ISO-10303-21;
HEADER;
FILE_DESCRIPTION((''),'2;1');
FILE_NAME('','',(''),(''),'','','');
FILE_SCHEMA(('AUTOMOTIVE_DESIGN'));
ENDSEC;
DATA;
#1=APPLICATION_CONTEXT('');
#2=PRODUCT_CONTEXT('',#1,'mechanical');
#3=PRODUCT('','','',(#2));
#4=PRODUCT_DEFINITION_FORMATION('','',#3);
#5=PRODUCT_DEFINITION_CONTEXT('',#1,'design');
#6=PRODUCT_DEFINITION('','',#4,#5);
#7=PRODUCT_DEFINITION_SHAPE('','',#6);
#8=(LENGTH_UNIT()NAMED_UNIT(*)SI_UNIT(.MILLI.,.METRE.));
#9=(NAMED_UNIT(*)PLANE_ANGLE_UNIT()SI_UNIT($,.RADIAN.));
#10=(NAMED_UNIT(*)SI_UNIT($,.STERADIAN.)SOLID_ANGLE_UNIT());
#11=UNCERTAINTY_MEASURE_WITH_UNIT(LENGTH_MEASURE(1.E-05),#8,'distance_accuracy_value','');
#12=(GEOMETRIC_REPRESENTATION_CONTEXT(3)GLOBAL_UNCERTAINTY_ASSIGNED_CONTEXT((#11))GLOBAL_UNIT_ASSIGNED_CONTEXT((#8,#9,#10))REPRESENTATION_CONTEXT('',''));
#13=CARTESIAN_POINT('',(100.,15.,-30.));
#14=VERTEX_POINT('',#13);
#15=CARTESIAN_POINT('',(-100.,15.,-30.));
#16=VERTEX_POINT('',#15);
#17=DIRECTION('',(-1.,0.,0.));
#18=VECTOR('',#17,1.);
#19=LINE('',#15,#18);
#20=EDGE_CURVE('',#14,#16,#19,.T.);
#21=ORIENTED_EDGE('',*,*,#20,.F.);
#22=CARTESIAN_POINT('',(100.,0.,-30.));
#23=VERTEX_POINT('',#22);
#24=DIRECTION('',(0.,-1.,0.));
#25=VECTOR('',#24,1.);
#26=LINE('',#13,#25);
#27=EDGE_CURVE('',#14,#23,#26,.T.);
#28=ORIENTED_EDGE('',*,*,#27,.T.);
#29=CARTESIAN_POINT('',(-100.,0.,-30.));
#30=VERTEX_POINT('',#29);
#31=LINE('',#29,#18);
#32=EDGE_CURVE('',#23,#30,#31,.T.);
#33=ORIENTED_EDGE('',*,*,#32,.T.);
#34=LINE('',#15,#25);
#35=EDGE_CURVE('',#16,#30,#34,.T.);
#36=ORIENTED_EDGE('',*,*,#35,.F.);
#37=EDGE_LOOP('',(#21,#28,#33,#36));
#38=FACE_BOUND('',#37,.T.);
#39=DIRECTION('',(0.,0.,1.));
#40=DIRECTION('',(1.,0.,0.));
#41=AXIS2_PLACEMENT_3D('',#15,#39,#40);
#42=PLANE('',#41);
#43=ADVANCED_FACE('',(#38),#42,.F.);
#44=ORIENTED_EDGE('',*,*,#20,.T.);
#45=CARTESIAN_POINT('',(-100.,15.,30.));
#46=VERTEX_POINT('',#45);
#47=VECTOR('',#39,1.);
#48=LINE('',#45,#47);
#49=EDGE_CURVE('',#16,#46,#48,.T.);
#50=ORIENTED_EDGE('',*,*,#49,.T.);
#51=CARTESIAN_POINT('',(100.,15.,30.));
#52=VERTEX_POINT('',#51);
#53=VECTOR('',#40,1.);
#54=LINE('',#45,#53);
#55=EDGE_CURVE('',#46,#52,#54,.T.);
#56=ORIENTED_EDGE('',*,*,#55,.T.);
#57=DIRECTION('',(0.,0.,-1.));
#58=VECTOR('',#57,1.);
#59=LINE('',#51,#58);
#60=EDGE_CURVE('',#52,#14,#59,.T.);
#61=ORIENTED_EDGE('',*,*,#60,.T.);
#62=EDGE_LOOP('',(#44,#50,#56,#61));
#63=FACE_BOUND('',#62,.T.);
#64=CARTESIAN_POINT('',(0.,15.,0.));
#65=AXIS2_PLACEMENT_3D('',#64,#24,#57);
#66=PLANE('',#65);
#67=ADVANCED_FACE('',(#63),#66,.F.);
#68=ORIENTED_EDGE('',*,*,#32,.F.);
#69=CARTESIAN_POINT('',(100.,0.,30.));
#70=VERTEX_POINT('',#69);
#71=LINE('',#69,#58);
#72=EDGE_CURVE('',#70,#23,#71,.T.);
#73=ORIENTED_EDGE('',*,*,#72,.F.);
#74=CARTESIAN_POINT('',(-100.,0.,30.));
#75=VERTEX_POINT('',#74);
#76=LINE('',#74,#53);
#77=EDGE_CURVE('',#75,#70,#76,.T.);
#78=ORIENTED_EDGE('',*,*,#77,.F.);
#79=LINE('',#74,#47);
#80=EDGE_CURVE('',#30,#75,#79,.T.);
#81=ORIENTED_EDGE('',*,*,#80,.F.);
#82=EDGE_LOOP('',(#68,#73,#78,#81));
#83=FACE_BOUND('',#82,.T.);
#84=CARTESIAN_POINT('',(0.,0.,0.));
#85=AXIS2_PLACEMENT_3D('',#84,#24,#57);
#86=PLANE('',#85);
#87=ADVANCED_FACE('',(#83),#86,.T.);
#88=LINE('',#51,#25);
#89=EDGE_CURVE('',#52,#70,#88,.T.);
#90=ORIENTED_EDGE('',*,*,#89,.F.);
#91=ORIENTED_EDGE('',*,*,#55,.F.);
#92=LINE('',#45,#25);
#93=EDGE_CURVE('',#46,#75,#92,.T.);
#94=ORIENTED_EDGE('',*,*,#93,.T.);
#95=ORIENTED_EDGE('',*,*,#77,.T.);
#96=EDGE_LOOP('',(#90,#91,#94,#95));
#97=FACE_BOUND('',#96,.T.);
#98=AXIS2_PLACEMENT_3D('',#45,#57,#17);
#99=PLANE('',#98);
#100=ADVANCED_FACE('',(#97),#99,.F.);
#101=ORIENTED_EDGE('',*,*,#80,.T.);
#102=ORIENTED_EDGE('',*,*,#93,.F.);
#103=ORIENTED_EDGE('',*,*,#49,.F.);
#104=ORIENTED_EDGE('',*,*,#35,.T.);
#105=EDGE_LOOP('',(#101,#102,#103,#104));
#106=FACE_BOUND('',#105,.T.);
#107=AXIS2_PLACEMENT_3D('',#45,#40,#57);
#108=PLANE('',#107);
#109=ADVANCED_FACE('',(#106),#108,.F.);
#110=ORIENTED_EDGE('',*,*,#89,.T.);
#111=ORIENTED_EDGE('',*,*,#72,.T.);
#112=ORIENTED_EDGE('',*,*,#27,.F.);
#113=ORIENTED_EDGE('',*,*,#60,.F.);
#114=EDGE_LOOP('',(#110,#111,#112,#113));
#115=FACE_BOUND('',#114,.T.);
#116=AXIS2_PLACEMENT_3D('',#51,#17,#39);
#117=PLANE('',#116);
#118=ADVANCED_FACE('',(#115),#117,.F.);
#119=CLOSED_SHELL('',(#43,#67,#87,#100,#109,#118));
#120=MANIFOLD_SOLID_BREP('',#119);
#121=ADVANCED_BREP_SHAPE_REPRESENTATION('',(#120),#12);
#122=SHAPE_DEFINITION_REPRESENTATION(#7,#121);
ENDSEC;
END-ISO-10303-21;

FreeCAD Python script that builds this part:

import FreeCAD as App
import Part
import Sketcher
from FreeCAD import Vector


def add_polygon(sketch, points):
    """Adds a closed chain of lines whose ends are joined by coincident constraints."""
    first, n = sketch.GeometryCount, len(points)
    for a, b in zip(points, points[1:] + points[:1]):
        sketch.addGeometry(Part.LineSegment(App.Vector(*a, 0), App.Vector(*b, 0)), False)
    for i in range(n):
        sketch.addConstraint(Sketcher.Constraint("Coincident", first + i, 2, first + (i + 1) % n, 1))

doc = App.newDocument("Part")
body = doc.addObject("PartDesign::Body", "Body")

sketch1 = doc.addObject("Sketcher::SketchObject", "Sketch")
body.addObject(sketch1)
sketch1.AttachmentSupport = (doc.XZ_Plane, [""])
sketch1.MapMode = "FlatFace"
add_polygon(sketch1, [(-100, -30), (-100, 30), (100, 30), (100, -30)])
sketch1.addConstraint(Sketcher.Constraint("Vertical", 0))
sketch1.addConstraint(Sketcher.Constraint("Horizontal", 1))
sketch1.addConstraint(Sketcher.Constraint("Vertical", 2))
sketch1.addConstraint(Sketcher.Constraint("Horizontal", 3))
sketch1.addConstraint(Sketcher.Constraint("Symmetric", 0, 2, 2, 2, -1, 1))
sketch1.addConstraint(Sketcher.Constraint("DistanceX", 1, 1, 1, 2, 200.0))
sketch1.addConstraint(Sketcher.Constraint("DistanceY", 0, 1, 0, 2, 60.0))
pad1 = doc.addObject("PartDesign::Pad", "Pad")
body.addObject(pad1)
pad1.Profile = sketch1
pad1.Length = 15
pad1.Reversed = True

doc.recompute()
